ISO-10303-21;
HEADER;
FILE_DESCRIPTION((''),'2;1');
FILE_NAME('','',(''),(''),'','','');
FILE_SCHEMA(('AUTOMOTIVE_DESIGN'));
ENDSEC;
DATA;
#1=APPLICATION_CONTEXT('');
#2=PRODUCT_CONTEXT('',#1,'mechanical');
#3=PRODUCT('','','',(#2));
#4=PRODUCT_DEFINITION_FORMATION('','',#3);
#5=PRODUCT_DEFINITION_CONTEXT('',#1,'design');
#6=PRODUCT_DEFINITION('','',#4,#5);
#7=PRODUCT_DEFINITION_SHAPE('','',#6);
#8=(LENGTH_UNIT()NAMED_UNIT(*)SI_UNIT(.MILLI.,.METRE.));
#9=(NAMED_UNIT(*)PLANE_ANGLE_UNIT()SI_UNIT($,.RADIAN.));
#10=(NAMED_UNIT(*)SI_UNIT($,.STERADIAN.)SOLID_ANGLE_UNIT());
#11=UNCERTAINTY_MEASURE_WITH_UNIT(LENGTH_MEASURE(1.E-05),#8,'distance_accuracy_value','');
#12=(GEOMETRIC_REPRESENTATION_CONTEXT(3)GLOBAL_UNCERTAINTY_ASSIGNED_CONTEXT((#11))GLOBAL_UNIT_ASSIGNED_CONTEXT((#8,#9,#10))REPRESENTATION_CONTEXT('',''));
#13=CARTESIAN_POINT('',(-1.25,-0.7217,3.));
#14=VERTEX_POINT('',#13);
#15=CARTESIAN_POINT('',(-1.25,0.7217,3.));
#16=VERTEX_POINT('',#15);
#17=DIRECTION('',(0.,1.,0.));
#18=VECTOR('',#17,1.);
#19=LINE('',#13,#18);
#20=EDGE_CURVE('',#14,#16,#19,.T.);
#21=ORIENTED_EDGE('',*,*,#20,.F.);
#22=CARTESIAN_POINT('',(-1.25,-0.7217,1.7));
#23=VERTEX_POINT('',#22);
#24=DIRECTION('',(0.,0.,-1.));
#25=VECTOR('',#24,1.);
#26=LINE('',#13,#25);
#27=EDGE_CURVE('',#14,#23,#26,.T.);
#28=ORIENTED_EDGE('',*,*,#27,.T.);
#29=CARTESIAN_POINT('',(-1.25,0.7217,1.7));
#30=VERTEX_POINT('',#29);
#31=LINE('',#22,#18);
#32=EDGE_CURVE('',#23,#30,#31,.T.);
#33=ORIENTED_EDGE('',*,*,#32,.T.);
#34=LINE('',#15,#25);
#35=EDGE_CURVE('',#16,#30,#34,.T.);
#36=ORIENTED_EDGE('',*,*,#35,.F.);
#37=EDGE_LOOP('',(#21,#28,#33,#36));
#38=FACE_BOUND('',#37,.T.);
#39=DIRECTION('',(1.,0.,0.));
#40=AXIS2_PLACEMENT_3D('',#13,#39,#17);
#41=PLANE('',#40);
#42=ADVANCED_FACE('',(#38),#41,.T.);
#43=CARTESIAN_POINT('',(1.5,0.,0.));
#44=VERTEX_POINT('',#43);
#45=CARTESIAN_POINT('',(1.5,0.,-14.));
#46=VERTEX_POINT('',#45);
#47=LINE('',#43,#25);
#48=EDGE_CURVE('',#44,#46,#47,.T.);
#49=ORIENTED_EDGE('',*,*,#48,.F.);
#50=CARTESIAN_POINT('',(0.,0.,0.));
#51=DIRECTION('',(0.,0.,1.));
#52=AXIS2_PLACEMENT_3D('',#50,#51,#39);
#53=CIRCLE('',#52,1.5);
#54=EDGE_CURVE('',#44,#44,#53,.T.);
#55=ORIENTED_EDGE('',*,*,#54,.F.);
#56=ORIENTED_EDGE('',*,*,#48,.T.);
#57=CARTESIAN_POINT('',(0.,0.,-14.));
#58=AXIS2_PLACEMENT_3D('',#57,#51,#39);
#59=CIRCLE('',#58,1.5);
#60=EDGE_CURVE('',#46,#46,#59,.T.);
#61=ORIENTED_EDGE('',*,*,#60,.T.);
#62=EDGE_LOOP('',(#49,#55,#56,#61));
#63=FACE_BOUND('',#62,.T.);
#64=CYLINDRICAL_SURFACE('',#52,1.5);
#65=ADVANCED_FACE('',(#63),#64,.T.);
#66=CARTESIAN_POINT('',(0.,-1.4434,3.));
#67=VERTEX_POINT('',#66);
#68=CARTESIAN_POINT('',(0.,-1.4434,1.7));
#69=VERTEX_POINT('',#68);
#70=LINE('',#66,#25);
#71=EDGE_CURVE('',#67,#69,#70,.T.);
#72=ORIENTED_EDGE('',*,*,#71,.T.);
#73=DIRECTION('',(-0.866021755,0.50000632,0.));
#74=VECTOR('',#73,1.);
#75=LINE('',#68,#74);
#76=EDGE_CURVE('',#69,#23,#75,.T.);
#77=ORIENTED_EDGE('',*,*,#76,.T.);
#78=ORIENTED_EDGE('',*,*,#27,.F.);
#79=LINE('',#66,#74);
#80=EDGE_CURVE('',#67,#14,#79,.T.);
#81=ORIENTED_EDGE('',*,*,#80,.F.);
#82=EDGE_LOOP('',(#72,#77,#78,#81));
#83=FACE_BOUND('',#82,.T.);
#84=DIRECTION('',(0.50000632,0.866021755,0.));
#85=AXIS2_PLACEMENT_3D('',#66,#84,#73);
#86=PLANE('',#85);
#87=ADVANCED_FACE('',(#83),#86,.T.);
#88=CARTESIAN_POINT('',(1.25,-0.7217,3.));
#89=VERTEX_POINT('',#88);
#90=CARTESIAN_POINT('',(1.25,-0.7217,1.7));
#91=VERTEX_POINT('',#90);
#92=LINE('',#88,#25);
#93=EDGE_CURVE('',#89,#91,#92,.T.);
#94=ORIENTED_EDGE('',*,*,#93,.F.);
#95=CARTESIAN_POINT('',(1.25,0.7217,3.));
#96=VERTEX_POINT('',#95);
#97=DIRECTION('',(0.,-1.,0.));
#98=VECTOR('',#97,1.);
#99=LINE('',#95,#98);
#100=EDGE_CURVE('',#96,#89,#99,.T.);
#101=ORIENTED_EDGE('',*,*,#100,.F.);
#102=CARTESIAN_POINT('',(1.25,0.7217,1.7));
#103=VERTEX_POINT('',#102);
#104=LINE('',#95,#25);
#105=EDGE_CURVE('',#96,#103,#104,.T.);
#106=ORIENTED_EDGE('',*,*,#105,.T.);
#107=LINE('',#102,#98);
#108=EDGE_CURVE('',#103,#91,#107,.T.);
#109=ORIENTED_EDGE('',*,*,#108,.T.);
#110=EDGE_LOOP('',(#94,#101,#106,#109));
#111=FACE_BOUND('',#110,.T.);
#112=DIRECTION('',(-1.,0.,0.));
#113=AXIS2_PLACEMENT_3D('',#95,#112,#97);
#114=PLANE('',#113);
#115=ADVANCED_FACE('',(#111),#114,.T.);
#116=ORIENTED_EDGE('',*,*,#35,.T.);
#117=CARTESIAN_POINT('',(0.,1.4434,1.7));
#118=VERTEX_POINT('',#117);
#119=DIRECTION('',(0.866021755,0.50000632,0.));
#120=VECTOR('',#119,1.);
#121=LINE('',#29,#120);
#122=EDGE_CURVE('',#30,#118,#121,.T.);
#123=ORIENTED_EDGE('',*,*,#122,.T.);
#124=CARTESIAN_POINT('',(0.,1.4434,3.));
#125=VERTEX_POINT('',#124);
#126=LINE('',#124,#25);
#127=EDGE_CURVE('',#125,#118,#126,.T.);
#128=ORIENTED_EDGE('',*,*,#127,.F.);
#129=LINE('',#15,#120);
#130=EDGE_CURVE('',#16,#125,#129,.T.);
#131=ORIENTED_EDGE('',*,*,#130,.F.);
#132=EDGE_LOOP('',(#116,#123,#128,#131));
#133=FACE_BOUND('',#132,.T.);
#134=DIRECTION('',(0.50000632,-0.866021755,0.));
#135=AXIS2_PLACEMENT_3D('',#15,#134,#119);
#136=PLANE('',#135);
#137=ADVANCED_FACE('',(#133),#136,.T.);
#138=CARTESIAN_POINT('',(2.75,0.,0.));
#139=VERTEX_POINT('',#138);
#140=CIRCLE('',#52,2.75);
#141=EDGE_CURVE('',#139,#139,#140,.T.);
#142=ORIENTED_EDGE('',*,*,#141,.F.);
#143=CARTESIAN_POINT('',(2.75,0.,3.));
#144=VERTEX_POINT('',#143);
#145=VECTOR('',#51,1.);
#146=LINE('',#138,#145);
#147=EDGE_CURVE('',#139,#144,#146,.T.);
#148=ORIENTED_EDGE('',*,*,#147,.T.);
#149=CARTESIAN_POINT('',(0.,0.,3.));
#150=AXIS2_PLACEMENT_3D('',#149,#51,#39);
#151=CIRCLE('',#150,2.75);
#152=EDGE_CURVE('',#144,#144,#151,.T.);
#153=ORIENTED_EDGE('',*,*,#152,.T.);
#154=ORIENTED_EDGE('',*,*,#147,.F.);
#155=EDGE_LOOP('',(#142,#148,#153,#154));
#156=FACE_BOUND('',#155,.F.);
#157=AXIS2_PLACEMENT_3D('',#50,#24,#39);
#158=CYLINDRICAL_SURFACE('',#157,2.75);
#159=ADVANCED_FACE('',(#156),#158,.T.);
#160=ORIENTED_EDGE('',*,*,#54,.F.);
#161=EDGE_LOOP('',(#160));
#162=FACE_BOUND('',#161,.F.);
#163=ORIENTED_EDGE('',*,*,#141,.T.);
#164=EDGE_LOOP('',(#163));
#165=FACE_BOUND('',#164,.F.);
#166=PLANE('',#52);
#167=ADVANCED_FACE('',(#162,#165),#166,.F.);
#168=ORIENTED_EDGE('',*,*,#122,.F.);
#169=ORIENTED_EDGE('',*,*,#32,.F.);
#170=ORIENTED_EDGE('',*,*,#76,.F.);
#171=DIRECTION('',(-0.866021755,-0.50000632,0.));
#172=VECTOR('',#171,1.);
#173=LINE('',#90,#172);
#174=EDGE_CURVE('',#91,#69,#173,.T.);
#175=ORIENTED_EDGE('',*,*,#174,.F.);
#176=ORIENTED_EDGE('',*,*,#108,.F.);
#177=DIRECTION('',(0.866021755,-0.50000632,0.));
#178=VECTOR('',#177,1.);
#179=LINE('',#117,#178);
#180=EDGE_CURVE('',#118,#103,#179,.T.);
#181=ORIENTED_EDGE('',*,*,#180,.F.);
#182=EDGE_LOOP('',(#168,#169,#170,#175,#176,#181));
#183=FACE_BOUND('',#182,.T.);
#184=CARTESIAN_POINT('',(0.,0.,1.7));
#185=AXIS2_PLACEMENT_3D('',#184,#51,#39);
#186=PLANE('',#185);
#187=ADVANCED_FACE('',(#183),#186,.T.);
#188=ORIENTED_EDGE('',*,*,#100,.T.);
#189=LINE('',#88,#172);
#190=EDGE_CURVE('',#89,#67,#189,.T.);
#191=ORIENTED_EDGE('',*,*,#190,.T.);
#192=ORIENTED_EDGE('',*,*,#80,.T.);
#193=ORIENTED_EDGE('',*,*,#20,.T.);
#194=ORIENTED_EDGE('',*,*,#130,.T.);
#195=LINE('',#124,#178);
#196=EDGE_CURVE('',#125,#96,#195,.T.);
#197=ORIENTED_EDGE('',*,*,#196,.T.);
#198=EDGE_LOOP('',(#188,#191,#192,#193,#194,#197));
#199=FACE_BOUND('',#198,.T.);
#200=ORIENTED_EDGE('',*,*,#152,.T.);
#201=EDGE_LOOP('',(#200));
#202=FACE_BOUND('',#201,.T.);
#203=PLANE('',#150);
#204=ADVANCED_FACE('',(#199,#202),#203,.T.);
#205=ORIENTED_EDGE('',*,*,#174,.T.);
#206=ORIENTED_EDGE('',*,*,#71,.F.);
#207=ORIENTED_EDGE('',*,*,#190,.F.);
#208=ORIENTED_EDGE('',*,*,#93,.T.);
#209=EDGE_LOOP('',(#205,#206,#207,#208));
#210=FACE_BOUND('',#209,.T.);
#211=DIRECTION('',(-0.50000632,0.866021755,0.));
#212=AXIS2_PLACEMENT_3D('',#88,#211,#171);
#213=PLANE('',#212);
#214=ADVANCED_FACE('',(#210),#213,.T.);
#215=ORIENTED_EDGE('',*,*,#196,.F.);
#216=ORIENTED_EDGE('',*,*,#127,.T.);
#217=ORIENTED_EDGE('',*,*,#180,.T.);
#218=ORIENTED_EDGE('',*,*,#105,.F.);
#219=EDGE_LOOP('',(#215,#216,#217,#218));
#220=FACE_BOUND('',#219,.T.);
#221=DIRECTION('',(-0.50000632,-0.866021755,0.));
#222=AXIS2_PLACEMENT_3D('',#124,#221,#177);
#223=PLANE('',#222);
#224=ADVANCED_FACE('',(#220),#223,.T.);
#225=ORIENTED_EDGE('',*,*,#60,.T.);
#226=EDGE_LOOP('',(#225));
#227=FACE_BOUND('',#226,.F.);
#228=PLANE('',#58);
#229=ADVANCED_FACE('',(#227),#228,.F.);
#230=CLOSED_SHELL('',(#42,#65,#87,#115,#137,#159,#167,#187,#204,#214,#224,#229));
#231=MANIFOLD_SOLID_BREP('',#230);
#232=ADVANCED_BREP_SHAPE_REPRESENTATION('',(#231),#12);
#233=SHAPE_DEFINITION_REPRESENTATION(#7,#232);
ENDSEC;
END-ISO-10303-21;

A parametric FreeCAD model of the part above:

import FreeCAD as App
import Part
import Sketcher
from FreeCAD import Vector
Q = App.Units.Quantity

doc = App.newDocument("Part")
body = doc.addObject("PartDesign::Body", "Body")

# Sketch on XY plane
sketch1 = body.newObject("Sketcher::SketchObject", "Sketch")
sketch1.AttachmentSupport = (doc.getObject("XY_Plane"), [""])
sketch1.MapMode = "FlatFace"
sketch1.addGeometry(Part.Circle(Vector(0, 0, 0), Vector(0, 0, 1), 1.5), False)
sketch1.addConstraint([
    Sketcher.Constraint("Coincident", 0, 3, -1, 1),
    Sketcher.Constraint("Diameter", 0, 3.0),
])
pad1 = body.newObject("PartDesign::Pad", "Pad")
pad1.Profile = sketch1
pad1.Length = 14
pad1.Reversed = True

# Sketch on XY plane
sketch2 = body.newObject("Sketcher::SketchObject", "Sketch001")
sketch2.AttachmentSupport = (doc.getObject("XY_Plane"), [""])
sketch2.MapMode = "FlatFace"
sketch2.addGeometry(Part.Circle(Vector(0, 0, 0), Vector(0, 0, 1), 2.8), False)
sketch2.addConstraint([
    Sketcher.Constraint("Coincident", 0, 3, -1, 1),
    Sketcher.Constraint("Diameter", 0, 5.5),
])
pad2 = body.newObject("PartDesign::Pad", "Pad001")
pad2.Profile = sketch2
pad2.Length = 3

# Sketch on XY plane
sketch3 = body.newObject("Sketcher::SketchObject", "Sketch002")
sketch3.AttachmentSupport = (doc.getObject("XY_Plane"), [""])
sketch3.MapMode = "FlatFace"
sketch3.AttachmentOffset = App.Placement(Vector(0, 0, 3), App.Rotation())
sketch3.addGeometry([
    Part.LineSegment(Vector(1.2, 0.7, 0), Vector(0, 1.4, 0)),  # 0
    Part.LineSegment(Vector(0, 1.4, 0), Vector(-1.2, 0.7, 0)),  # 1
    Part.LineSegment(Vector(-1.2, 0.7, 0), Vector(-1.2, -0.7, 0)),  # 2
    Part.LineSegment(Vector(-1.2, -0.7, 0), Vector(0, -1.4, 0)),  # 3
    Part.LineSegment(Vector(0, -1.4, 0), Vector(1.2, -0.7, 0)),  # 4
    Part.LineSegment(Vector(1.2, -0.7, 0), Vector(1.2, 0.7, 0)),  # 5
], False)
sketch3.addConstraint([
    Sketcher.Constraint("Coincident", 0, 2, 1, 1),
    Sketcher.Constraint("Coincident", 1, 2, 2, 1),
    Sketcher.Constraint("Coincident", 2, 2, 3, 1),
    Sketcher.Constraint("Coincident", 3, 2, 4, 1),
    Sketcher.Constraint("Coincident", 4, 2, 5, 1),
    Sketcher.Constraint("Coincident", 5, 2, 0, 1),
    Sketcher.Constraint("Vertical", 2),
    Sketcher.Constraint("Vertical", 5),
    Sketcher.Constraint("Symmetric", 0, 2, 3, 2, -1, 1),
    Sketcher.Constraint("Symmetric", 1, 2, 4, 2, -1, 1),
    Sketcher.Constraint("PointOnObject", 0, 2, -2),
    Sketcher.Constraint("Parallel", 0, 3),
    Sketcher.Constraint("Horizontal", 2, 2, 4, 2),
    Sketcher.Constraint("DistanceX", 2, 2, 4, 2, 2.5),
    Sketcher.Constraint("Angle", 0, Q("149.9996 deg")),
    Sketcher.Constraint("DistanceY", 2, 2, 2, 1, 1.4434),
])
pocket1 = body.newObject("PartDesign::Pocket", "Pocket")
pocket1.Profile = sketch3
pocket1.Length = 1.3

doc.recompute()
